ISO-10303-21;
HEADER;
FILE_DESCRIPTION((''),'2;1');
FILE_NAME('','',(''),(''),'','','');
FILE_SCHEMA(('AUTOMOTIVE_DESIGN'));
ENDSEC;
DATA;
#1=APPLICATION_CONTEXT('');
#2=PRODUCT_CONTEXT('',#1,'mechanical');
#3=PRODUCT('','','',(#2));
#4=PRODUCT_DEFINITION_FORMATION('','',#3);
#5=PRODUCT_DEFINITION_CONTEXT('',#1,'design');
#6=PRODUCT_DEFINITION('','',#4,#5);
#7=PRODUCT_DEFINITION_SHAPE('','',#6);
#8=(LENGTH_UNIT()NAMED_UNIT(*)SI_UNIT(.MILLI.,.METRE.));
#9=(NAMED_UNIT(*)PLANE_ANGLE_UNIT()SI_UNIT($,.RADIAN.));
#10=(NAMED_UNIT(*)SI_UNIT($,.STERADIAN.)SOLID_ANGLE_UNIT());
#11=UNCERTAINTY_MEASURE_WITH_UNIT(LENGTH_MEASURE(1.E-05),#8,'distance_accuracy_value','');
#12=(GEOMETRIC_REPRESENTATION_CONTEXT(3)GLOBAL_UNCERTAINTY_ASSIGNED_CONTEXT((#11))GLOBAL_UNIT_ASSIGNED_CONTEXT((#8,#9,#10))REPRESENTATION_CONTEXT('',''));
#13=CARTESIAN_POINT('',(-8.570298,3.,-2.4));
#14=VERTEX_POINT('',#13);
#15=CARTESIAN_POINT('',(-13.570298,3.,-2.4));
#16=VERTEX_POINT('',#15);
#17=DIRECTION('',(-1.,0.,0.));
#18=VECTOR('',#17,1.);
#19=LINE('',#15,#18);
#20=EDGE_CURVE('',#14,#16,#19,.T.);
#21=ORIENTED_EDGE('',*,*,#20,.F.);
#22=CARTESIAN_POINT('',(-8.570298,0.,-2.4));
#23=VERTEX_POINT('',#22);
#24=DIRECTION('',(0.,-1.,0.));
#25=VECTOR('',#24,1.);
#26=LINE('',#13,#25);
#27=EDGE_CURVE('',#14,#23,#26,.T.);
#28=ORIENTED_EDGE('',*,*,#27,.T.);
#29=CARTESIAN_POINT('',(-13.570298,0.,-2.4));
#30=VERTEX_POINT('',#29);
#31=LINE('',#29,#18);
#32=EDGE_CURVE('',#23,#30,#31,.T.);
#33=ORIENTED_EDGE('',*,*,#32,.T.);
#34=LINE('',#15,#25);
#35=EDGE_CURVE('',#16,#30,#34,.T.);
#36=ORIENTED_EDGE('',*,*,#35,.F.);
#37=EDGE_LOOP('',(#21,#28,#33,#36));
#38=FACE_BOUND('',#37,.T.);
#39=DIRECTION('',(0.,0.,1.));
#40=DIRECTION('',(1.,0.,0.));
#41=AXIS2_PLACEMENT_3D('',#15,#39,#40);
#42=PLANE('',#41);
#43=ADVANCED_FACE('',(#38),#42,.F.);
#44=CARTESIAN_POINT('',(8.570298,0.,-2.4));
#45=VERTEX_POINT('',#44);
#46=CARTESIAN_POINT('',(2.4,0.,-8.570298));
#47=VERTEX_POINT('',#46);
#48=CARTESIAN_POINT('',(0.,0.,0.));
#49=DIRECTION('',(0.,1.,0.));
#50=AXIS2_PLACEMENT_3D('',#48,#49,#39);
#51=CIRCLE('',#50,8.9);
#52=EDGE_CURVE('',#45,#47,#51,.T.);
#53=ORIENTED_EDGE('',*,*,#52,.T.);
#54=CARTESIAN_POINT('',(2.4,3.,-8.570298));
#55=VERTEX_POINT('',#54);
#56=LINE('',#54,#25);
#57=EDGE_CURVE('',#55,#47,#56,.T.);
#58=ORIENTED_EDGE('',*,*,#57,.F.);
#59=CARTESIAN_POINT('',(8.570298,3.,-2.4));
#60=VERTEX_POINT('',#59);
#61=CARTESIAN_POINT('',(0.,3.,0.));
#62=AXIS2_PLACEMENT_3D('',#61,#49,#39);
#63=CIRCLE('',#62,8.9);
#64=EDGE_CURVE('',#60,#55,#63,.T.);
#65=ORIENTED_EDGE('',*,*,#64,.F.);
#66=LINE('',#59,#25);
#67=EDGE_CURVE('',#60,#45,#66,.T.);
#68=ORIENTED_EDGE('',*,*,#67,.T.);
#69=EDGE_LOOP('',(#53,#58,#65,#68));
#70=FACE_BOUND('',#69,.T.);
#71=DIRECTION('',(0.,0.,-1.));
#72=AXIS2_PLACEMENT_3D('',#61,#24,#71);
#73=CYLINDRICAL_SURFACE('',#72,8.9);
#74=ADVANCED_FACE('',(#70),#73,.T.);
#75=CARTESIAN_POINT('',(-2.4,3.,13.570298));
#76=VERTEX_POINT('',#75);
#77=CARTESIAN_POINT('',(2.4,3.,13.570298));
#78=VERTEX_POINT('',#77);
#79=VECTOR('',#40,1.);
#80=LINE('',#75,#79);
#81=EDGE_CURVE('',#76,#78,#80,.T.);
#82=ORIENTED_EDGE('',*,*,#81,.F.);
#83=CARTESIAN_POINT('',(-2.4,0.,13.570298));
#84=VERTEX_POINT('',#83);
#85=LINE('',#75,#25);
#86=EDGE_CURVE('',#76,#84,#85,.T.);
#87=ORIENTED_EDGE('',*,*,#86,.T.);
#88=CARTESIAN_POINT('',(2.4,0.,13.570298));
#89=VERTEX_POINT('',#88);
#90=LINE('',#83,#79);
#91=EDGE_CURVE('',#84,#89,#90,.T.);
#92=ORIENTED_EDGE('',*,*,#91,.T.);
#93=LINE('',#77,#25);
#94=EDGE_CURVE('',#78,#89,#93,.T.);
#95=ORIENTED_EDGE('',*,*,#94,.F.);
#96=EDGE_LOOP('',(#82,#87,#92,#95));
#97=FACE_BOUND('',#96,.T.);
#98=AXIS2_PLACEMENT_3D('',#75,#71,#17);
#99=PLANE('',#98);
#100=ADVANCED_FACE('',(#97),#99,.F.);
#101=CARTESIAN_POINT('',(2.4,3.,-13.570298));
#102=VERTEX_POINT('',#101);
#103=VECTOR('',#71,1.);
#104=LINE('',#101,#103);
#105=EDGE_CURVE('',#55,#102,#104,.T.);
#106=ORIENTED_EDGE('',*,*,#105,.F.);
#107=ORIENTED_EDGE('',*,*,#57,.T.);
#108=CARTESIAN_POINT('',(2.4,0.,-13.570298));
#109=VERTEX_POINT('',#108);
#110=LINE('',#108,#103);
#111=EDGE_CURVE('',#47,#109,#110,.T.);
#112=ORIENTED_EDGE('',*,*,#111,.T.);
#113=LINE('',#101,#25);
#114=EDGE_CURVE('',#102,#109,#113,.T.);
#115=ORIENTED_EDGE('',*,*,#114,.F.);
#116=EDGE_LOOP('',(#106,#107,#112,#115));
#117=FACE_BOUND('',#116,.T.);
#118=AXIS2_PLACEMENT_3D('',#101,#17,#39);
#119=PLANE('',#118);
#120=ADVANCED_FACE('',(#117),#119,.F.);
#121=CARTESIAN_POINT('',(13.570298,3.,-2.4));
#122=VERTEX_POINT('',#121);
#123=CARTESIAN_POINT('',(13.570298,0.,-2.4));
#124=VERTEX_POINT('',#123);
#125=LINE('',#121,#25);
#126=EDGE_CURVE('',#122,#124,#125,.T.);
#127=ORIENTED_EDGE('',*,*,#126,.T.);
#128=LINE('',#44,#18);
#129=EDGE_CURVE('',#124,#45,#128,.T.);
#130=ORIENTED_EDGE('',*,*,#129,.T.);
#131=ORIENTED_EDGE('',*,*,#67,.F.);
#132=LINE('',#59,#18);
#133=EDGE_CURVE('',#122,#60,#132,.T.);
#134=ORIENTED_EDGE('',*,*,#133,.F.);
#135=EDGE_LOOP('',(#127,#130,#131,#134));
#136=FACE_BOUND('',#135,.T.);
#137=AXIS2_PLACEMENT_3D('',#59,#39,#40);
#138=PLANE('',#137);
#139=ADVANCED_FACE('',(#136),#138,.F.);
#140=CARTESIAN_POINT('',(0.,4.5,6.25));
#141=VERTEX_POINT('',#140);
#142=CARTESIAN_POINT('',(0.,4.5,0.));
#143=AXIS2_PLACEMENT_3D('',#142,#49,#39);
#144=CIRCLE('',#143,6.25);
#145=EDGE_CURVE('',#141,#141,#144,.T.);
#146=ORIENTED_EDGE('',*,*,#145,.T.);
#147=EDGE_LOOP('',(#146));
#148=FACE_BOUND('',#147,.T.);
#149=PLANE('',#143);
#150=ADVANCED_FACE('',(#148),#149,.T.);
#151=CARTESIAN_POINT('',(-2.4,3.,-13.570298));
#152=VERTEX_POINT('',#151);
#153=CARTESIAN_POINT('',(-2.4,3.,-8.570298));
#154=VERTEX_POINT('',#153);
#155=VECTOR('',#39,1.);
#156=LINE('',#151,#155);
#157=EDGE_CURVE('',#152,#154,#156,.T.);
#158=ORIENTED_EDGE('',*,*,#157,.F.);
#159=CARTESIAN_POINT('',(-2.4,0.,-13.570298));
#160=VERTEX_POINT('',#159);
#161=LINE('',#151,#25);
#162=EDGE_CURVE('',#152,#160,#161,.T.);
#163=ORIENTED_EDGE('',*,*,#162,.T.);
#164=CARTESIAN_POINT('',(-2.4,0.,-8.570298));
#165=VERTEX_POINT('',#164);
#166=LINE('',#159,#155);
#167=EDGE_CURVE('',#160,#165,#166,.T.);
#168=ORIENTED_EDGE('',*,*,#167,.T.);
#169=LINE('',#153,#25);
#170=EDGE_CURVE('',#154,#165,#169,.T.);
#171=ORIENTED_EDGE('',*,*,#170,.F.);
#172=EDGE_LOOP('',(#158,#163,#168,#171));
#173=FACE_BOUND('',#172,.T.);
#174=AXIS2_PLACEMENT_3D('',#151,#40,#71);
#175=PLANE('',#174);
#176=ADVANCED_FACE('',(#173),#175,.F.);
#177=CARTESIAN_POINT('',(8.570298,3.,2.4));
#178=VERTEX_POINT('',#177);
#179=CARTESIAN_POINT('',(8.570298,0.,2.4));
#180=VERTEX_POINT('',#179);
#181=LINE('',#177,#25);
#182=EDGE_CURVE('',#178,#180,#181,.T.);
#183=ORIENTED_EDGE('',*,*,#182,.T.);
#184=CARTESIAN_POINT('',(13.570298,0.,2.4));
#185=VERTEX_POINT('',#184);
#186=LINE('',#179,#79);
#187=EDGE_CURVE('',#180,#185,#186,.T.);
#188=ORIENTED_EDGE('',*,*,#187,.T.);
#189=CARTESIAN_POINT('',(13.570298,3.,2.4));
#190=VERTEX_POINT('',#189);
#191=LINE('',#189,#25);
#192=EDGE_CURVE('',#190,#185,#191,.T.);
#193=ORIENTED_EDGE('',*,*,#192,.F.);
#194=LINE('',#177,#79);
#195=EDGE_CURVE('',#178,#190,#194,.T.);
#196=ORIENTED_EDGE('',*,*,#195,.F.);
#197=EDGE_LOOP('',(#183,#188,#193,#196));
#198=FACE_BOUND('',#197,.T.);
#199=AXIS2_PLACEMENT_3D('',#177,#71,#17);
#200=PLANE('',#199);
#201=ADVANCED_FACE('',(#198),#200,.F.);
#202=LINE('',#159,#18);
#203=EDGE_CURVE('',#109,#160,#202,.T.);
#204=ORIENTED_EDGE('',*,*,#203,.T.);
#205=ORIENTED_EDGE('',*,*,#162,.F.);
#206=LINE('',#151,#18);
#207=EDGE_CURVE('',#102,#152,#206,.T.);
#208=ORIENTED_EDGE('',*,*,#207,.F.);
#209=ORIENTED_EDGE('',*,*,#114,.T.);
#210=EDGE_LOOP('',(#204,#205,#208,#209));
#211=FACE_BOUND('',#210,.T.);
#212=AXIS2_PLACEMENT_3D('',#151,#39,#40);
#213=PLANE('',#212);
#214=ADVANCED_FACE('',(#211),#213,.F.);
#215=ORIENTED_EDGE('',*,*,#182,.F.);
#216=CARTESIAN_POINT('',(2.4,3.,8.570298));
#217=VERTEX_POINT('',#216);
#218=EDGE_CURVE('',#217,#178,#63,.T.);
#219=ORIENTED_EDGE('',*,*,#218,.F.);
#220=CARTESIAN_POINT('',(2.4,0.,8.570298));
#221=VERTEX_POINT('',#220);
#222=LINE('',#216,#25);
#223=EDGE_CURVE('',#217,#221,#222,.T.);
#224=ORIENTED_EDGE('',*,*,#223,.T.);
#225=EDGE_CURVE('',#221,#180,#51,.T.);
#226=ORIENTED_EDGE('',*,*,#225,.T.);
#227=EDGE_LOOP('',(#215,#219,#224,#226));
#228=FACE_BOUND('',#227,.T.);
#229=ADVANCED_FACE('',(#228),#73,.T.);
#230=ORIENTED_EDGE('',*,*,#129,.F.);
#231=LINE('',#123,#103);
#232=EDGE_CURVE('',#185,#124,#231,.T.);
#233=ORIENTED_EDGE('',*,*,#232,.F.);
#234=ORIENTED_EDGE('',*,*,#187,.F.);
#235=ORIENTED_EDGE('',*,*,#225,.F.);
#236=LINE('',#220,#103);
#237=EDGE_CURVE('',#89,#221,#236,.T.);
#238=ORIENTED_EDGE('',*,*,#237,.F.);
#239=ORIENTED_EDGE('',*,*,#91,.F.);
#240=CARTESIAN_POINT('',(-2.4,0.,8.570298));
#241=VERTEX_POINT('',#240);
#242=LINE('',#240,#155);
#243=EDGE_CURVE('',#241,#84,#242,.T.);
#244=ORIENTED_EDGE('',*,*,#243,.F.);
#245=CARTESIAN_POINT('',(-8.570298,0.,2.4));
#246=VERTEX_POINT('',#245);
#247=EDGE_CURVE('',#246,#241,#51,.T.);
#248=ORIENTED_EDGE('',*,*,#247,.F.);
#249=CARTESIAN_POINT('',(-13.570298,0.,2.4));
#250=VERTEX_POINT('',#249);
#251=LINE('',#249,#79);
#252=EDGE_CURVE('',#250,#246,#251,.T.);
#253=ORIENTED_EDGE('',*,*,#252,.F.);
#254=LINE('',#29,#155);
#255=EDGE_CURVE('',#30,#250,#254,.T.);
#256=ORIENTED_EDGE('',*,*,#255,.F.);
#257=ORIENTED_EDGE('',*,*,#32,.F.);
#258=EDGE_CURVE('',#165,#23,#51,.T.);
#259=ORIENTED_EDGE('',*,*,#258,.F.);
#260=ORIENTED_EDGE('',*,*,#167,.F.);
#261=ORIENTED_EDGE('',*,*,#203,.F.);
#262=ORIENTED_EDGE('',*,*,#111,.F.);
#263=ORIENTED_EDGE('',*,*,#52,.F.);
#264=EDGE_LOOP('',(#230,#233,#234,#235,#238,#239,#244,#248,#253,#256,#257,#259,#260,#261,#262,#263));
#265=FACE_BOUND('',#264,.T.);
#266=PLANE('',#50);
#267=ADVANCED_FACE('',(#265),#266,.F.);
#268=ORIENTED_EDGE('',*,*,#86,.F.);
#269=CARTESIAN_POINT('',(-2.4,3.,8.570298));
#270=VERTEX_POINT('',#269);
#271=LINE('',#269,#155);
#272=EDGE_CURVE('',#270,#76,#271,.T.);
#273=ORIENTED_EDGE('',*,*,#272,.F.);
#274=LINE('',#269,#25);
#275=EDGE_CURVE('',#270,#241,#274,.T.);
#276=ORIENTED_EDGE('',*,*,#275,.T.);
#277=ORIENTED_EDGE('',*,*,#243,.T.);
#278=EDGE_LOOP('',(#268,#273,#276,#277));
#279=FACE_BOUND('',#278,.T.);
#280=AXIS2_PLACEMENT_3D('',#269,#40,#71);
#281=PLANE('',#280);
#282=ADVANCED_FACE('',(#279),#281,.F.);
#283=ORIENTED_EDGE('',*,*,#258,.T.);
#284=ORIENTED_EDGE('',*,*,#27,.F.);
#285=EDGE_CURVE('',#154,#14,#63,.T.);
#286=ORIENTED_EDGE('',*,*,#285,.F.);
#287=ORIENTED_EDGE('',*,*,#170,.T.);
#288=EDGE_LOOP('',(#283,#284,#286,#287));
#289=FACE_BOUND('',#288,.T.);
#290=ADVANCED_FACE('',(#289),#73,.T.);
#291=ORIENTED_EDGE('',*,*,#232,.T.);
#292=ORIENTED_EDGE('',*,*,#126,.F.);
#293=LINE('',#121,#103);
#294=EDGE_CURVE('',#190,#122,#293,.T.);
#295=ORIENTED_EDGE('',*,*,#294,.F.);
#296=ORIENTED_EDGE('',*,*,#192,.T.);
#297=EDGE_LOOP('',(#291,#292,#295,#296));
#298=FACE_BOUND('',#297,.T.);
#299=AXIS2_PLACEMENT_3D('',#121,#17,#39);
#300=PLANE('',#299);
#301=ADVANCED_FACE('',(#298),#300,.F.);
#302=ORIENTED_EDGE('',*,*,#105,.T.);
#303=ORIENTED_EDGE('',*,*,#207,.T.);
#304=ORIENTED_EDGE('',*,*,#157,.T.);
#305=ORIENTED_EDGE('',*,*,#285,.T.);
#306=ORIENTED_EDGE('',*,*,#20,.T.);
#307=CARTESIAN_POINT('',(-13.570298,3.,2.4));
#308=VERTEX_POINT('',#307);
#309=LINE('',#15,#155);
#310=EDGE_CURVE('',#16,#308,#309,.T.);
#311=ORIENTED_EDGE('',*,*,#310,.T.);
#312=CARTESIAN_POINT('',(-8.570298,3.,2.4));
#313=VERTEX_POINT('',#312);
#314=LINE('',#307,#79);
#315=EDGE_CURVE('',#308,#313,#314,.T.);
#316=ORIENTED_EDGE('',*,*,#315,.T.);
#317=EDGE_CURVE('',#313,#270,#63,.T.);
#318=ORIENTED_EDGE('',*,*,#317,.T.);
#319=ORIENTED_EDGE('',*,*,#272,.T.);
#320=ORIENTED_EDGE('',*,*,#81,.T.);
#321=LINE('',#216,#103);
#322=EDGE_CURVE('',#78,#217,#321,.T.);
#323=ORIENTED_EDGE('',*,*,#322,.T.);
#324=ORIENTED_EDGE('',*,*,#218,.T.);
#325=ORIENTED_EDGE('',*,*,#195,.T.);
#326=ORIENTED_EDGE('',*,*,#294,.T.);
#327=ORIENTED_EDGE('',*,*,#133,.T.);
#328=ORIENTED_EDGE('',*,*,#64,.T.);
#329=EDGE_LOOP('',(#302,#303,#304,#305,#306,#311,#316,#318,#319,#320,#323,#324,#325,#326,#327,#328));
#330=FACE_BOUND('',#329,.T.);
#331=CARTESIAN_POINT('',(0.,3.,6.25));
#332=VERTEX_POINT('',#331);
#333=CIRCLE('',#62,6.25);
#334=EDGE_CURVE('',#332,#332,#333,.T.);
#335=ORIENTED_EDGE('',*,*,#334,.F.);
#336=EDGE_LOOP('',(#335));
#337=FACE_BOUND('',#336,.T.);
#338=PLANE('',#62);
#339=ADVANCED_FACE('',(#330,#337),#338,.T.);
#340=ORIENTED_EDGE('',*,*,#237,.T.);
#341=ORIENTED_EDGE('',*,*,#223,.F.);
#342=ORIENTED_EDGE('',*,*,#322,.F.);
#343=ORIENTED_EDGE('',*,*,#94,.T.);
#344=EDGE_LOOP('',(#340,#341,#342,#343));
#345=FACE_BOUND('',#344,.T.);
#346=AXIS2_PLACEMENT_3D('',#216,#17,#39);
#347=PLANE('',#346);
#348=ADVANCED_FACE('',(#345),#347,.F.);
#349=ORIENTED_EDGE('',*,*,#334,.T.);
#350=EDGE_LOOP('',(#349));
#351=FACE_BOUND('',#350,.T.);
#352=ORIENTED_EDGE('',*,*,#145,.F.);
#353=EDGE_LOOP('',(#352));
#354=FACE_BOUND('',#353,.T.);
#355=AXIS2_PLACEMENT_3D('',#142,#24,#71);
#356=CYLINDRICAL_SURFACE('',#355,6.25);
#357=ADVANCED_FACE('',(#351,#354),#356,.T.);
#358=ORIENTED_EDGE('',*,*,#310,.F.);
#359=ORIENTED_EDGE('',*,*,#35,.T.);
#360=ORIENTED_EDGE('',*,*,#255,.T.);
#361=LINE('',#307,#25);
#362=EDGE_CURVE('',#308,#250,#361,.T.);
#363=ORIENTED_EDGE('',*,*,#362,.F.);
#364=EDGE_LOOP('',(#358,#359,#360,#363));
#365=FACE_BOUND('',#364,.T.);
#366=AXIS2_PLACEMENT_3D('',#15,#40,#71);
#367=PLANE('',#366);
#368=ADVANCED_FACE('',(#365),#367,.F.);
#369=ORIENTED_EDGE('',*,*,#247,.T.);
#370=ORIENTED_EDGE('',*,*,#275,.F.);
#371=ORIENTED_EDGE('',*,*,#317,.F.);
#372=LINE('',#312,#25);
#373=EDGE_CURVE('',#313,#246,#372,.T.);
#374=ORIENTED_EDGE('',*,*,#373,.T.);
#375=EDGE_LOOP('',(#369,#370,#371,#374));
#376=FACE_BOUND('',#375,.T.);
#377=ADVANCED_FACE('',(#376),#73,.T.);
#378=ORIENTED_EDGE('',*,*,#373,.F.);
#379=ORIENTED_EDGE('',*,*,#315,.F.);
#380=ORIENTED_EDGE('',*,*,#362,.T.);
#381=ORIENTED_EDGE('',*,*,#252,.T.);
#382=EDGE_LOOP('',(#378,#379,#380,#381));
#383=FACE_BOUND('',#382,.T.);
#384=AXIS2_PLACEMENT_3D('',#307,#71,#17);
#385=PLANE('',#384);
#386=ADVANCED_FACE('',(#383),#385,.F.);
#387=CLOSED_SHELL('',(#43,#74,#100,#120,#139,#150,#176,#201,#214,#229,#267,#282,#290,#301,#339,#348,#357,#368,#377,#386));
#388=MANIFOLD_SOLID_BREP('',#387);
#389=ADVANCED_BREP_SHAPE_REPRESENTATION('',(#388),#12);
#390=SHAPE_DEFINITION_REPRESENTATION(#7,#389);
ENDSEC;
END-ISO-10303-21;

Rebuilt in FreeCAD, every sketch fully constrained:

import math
import FreeCAD as App
import Part
import Sketcher
from FreeCAD import Vector

doc = App.newDocument("Part")
params = doc.addObject("Spreadsheet::Sheet", "Params")
for row, (alias, value) in enumerate([
    ("sketch1_radius", "8.9 mm"),
    ("sketch1_width", "5 mm"),
    ("sketch1_width2", "4.8 mm"),
    ("pad1_length", "3 mm"),
    ("sketch2_diameter", "12.5 mm"),
    ("pad2_length", "1.5 mm"),
], start=1):
    params.set(f"A{row}", alias)
    params.set(f"B{row}", "=" + value)
    params.setAlias(f"B{row}", alias)

body = doc.addObject("PartDesign::Body", "Body")

sketch1 = body.newObject("Sketcher::SketchObject", "Sketch")
sketch1.AttachmentSupport = (doc.getObject("XZ_Plane"), [""])
sketch1.MapMode = "FlatFace"
sketch1.addGeometry([
    Part.LineSegment(Vector(-8.570298, -2.4, 0), Vector(-13.570298, -2.4, 0)),
    Part.LineSegment(Vector(-13.570298, -2.4, 0), Vector(-13.570298, 2.4, 0)),
    Part.LineSegment(Vector(-13.570298, 2.4, 0), Vector(-8.570298, 2.4, 0)),
    Part.ArcOfCircle(Part.Circle(Vector(0, 0, 0), Vector(0, 0, 1), 8.9), math.radians(105.64421), math.radians(164.35579)),
    Part.LineSegment(Vector(-2.4, 8.570298, 0), Vector(-2.4, 13.570298, 0)),
    Part.LineSegment(Vector(-2.4, 13.570298, 0), Vector(2.4, 13.570298, 0)),
    Part.LineSegment(Vector(2.4, 13.570298, 0), Vector(2.4, 8.570298, 0)),
    Part.ArcOfCircle(Part.Circle(Vector(0, 0, 0), Vector(0, 0, 1), 8.9), math.radians(15.64421), math.radians(74.35579)),
    Part.LineSegment(Vector(8.570298, 2.4, 0), Vector(13.570298, 2.4, 0)),
    Part.LineSegment(Vector(13.570298, 2.4, 0), Vector(13.570298, -2.4, 0)),
    Part.LineSegment(Vector(13.570298, -2.4, 0), Vector(8.570298, -2.4, 0)),
    Part.ArcOfCircle(Part.Circle(Vector(0, 0, 0), Vector(0, 0, 1), 8.9), math.radians(-74.35579), math.radians(-15.64421)),
    Part.LineSegment(Vector(2.4, -8.570298, 0), Vector(2.4, -13.570298, 0)),
    Part.LineSegment(Vector(2.4, -13.570298, 0), Vector(-2.4, -13.570298, 0)),
    Part.LineSegment(Vector(-2.4, -13.570298, 0), Vector(-2.4, -8.570298, 0)),
    Part.ArcOfCircle(Part.Circle(Vector(0, 0, 0), Vector(0, 0, 1), 8.9), math.radians(-164.35579), math.radians(-105.64421)),
], False)
sketch1.addConstraint([
    Sketcher.Constraint("Coincident", 0, 2, 1, 1),
    Sketcher.Constraint("Coincident", 1, 2, 2, 1),
    Sketcher.Constraint("Coincident", 2, 2, 3, 2),
    Sketcher.Constraint("Coincident", 3, 1, 4, 1),
    Sketcher.Constraint("Coincident", 4, 2, 5, 1),
    Sketcher.Constraint("Coincident", 5, 2, 6, 1),
    Sketcher.Constraint("Coincident", 6, 2, 7, 2),
    Sketcher.Constraint("Coincident", 7, 1, 8, 1),
    Sketcher.Constraint("Coincident", 8, 2, 9, 1),
    Sketcher.Constraint("Coincident", 9, 2, 10, 1),
    Sketcher.Constraint("Coincident", 10, 2, 11, 2),
    Sketcher.Constraint("Coincident", 11, 1, 12, 1),
    Sketcher.Constraint("Coincident", 12, 2, 13, 1),
    Sketcher.Constraint("Coincident", 13, 2, 14, 1),
    Sketcher.Constraint("Coincident", 14, 2, 15, 2),
    Sketcher.Constraint("Coincident", 15, 1, 0, 1),
    Sketcher.Constraint("Horizontal", 0),
    Sketcher.Constraint("Vertical", 1),
    Sketcher.Constraint("Horizontal", 2),
    Sketcher.Constraint("Vertical", 4),
    Sketcher.Constraint("Horizontal", 5),
    Sketcher.Constraint("Vertical", 6),
    Sketcher.Constraint("Horizontal", 8),
    Sketcher.Constraint("Vertical", 9),
    Sketcher.Constraint("Horizontal", 10),
    Sketcher.Constraint("Vertical", 12),
    Sketcher.Constraint("Horizontal", 13),
    Sketcher.Constraint("Vertical", 14),
    Sketcher.Constraint("Coincident", 3, 3, -1, 1),
    Sketcher.Constraint("Coincident", 7, 3, -1, 1),
    Sketcher.Constraint("Coincident", 11, 3, -1, 1),
    Sketcher.Constraint("Coincident", 15, 3, -1, 1),
    Sketcher.Constraint("Equal", 3, 7),
    Sketcher.Constraint("Equal", 7, 11),
    Sketcher.Constraint("Equal", 11, 15),
    Sketcher.Constraint("Symmetric", 0, 2, 8, 2, -1, 1),
    Sketcher.Constraint("Symmetric", 4, 2, 12, 2, -1, 1),
    Sketcher.Constraint("Horizontal", 3, 1, 6, 2),
    Sketcher.Constraint("Horizontal", 2, 2, 7, 1),
    Sketcher.Constraint("Horizontal", 0, 2, 9, 2),
    Sketcher.Constraint("Horizontal", 11, 1, 14, 2),
    Sketcher.Constraint("Equal", 13, 1),
    Sketcher.Constraint("Equal", 10, 4),
    Sketcher.Constraint("Radius", 3, 8.9),
    Sketcher.Constraint("DistanceX", 0, 2, 0, 1, 5.0),
    Sketcher.Constraint("DistanceX", 5, 1, 5, 2, 4.8),
])
sketch1.setExpression("Constraints[43]", "Params.sketch1_radius")
sketch1.setExpression("Constraints[44]", "Params.sketch1_width")
sketch1.setExpression("Constraints[45]", "Params.sketch1_width2")
pad1 = body.newObject("PartDesign::Pad", "Pad")
pad1.Profile = sketch1
pad1.setExpression("Length", "Params.pad1_length")
pad1.Reversed = True

sketch2 = body.newObject("Sketcher::SketchObject", "Sketch001")
sketch2.AttachmentSupport = (doc.getObject("XZ_Plane"), [""])
sketch2.MapMode = "FlatFace"
sketch2.AttachmentOffset = App.Placement(Vector(0, 0, -3), App.Rotation())
sketch2.addGeometry(Part.Circle(Vector(0, 0, 0), Vector(0, 0, 1), 6.25), False)
sketch2.addConstraint([
    Sketcher.Constraint("Coincident", 0, 3, -1, 1),
    Sketcher.Constraint("Diameter", 0, 12.5),
])
sketch2.setExpression("Constraints[1]", "Params.sketch2_diameter")
pad2 = body.newObject("PartDesign::Pad", "Pad001")
pad2.Profile = sketch2
pad2.setExpression("Length", "Params.pad2_length")
pad2.Reversed = True

doc.recompute()
